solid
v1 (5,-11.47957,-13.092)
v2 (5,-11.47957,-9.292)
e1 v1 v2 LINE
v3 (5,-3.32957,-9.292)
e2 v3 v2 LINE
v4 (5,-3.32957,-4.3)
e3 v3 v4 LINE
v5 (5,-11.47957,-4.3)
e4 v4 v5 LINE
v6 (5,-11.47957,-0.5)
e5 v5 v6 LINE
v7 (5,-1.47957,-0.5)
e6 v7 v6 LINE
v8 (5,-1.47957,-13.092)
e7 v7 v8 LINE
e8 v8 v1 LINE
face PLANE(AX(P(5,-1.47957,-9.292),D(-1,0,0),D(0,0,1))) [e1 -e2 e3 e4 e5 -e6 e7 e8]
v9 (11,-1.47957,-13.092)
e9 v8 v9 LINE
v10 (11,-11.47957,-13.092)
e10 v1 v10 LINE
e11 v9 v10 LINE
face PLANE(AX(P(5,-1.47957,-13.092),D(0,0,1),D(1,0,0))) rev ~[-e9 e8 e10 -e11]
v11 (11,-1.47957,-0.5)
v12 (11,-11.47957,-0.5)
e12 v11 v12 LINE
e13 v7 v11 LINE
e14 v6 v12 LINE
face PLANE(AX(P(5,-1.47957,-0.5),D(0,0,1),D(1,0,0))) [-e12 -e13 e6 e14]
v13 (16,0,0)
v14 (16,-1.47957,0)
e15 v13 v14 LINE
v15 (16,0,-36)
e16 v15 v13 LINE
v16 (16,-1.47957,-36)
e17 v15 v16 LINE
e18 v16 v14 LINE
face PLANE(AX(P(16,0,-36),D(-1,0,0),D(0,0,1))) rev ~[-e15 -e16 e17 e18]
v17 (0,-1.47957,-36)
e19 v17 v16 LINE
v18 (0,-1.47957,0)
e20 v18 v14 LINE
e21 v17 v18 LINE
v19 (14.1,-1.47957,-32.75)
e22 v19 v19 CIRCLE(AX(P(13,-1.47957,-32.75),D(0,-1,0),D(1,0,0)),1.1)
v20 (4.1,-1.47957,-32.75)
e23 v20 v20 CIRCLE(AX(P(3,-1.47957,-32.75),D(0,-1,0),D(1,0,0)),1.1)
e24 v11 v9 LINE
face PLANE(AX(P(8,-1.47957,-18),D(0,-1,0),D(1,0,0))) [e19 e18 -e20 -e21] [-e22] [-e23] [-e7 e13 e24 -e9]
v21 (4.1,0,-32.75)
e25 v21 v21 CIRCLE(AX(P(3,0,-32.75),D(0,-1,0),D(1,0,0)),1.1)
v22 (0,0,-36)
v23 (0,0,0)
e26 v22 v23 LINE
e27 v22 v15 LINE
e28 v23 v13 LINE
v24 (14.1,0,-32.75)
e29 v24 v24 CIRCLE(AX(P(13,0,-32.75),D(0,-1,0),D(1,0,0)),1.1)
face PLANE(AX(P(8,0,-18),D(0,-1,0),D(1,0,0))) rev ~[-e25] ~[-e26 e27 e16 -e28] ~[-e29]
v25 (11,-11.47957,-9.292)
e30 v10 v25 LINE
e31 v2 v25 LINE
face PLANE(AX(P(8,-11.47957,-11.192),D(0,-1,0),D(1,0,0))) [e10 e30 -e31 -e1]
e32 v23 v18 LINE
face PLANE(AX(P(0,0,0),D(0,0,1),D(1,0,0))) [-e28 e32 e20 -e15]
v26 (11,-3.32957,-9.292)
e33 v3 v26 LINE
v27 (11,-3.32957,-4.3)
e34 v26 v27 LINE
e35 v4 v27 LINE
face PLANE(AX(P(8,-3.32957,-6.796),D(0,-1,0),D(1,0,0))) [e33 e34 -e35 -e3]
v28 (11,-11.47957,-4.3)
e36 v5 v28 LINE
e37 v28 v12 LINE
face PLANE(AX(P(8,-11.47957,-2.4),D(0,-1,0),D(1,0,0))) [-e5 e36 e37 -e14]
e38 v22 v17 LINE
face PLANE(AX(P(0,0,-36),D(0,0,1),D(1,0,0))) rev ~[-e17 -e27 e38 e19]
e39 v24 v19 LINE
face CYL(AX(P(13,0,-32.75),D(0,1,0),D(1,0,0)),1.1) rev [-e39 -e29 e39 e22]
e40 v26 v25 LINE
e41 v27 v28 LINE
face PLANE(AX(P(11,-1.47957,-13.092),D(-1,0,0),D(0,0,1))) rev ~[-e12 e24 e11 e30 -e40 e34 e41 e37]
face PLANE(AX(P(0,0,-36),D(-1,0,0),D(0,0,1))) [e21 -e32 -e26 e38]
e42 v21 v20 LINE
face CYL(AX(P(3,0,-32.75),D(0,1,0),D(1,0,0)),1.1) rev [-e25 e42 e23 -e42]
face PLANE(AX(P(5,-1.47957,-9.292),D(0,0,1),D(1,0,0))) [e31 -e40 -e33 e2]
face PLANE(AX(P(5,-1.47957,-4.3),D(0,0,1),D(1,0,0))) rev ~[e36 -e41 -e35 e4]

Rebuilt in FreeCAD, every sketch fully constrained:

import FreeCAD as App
import Part
import Sketcher


def add_polygon(sketch, points):
    """Adds a closed chain of lines whose ends are joined by coincident constraints."""
    first, n = sketch.GeometryCount, len(points)
    for a, b in zip(points, points[1:] + points[:1]):
        sketch.addGeometry(Part.LineSegment(App.Vector(*a, 0), App.Vector(*b, 0)), False)
    for i in range(n):
        sketch.addConstraint(Sketcher.Constraint("Coincident", first + i, 2, first + (i + 1) % n, 1))

doc = App.newDocument("Part")
body = doc.addObject("PartDesign::Body", "Body")

sketch1 = body.newObject("Sketcher::SketchObject", "Sketch")
sketch1.AttachmentSupport = (doc.getObject("XZ_Plane"), [""])
sketch1.MapMode = "FlatFace"
add_polygon(sketch1, [(0, 0), (0, -36), (16, -36), (16, 0)])
sketch1.addGeometry(Part.Circle(App.Vector(3, -32.8, 0), App.Vector(0, 0, 1), 1.1), False)
sketch1.addGeometry(Part.Circle(App.Vector(13, -32.8, 0), App.Vector(0, 0, 1), 1.1), False)
sketch1.addConstraint(Sketcher.Constraint("Vertical", 0))
sketch1.addConstraint(Sketcher.Constraint("Horizontal", 1))
sketch1.addConstraint(Sketcher.Constraint("Vertical", 2))
sketch1.addConstraint(Sketcher.Constraint("Horizontal", 3))
sketch1.addConstraint(Sketcher.Constraint("Coincident", 3, 2, -1, 1))
sketch1.addConstraint(Sketcher.Constraint("Equal", 4, 5))
sketch1.addConstraint(Sketcher.Constraint("Horizontal", 4, 3, 5, 3))
sketch1.addConstraint(Sketcher.Constraint("Diameter", 4, 2.2))
sketch1.addConstraint(Sketcher.Constraint("DistanceX", 1, 1, 1, 2, 16.0))
sketch1.addConstraint(Sketcher.Constraint("DistanceY", 0, 2, 0, 1, 36.0))
sketch1.addConstraint(Sketcher.Constraint("DistanceX", -1, 1, 4, 3, 3.0))
sketch1.addConstraint(Sketcher.Constraint("DistanceX", -1, 1, 5, 3, 13.0))
sketch1.addConstraint(Sketcher.Constraint("DistanceY", 4, 3, -1, 1, 32.75))
pad1 = body.newObject("PartDesign::Pad", "Pad")
pad1.Profile = sketch1
pad1.Length = 1.47957

sketch2 = body.newObject("Sketcher::SketchObject", "Sketch001")
sketch2.AttachmentSupport = (doc.getObject("XZ_Plane"), [""])
sketch2.MapMode = "FlatFace"
sketch2.AttachmentOffset = App.Placement(App.Vector(0, 0, 1.47957), App.Rotation())
add_polygon(sketch2, [(5, -9.3), (5, -13.1), (11, -13.1), (11, -9.3)])
add_polygon(sketch2, [(5, -0.5), (5, -4.3), (11, -4.3), (11, -0.5)])
sketch2.addConstraint(Sketcher.Constraint("Vertical", 0))
sketch2.addConstraint(Sketcher.Constraint("Horizontal", 1))
sketch2.addConstraint(Sketcher.Constraint("Vertical", 2))
sketch2.addConstraint(Sketcher.Constraint("Horizontal", 3))
sketch2.addConstraint(Sketcher.Constraint("Vertical", 4))
sketch2.addConstraint(Sketcher.Constraint("Horizontal", 5))
sketch2.addConstraint(Sketcher.Constraint("Vertical", 6))
sketch2.addConstraint(Sketcher.Constraint("Horizontal", 7))
sketch2.addConstraint(Sketcher.Constraint("Vertical", 3, 2, 4, 2))
sketch2.addConstraint(Sketcher.Constraint("Vertical", 2, 2, 5, 2))
sketch2.addConstraint(Sketcher.Constraint("Equal", 2, 4))
sketch2.addConstraint(Sketcher.Constraint("DistanceX", 1, 1, 1, 2, 6.0))
sketch2.addConstraint(Sketcher.Constraint("DistanceY", 0, 2, 0, 1, 3.8))
sketch2.addConstraint(Sketcher.Constraint("DistanceX", -1, 1, 0, 2, 5.0))
sketch2.addConstraint(Sketcher.Constraint("DistanceY", 4, 2, -1, 1, 4.3))
sketch2.addConstraint(Sketcher.Constraint("DistanceY", 0, 2, -1, 1, 13.092))
pad2 = body.newObject("PartDesign::Pad", "Pad001")
pad2.Profile = sketch2
pad2.Length = 10

sketch3 = body.newObject("Sketcher::SketchObject", "Sketch002")
sketch3.AttachmentSupport = (doc.getObject("XZ_Plane"), [""])
sketch3.MapMode = "FlatFace"
sketch3.AttachmentOffset = App.Placement(App.Vector(0, 0, 1.47957), App.Rotation())
add_polygon(sketch3, [(5, -4.3), (5, -9.3), (11, -9.3), (11, -4.3)])
sketch3.addConstraint(Sketcher.Constraint("Vertical", 0))
sketch3.addConstraint(Sketcher.Constraint("Horizontal", 1))
sketch3.addConstraint(Sketcher.Constraint("Vertical", 2))
sketch3.addConstraint(Sketcher.Constraint("Horizontal", 3))
sketch3.addConstraint(Sketcher.Constraint("DistanceX", 1, 1, 1, 2, 6.0))
sketch3.addConstraint(Sketcher.Constraint("DistanceX", -1, 1, 0, 2, 5.0))
sketch3.addConstraint(Sketcher.Constraint("DistanceY", 2, 2, -1, 1, 4.3))
sketch3.addConstraint(Sketcher.Constraint("DistanceY", 0, 2, 0, 1, 4.992))
pad3 = body.newObject("PartDesign::Pad", "Pad002")
pad3.Profile = sketch3
pad3.Length = 1.85

doc.recompute()
